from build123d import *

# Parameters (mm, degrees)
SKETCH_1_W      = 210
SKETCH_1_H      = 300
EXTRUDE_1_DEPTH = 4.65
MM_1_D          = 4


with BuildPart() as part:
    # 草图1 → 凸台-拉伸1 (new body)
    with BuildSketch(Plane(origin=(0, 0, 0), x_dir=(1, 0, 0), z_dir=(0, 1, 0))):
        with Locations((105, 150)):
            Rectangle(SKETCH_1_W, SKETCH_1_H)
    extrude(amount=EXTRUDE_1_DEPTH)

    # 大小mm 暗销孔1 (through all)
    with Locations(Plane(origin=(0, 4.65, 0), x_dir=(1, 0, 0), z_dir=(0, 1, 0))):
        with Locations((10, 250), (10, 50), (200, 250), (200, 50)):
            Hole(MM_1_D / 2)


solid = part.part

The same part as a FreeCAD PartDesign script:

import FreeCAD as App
import Part
import Sketcher

V = App.Vector
Q = App.Units.Quantity

doc = App.newDocument("Part")
body = doc.addObject("PartDesign::Body", "Body")

sketch1 = body.newObject("Sketcher::SketchObject", "Sketch")
sketch1.AttachmentSupport = (doc.getObject("XZ_Plane"), [""])
sketch1.MapMode = "FlatFace"
sketch1.addGeometry([
    Part.LineSegment(V(0, -300, 0), V(0, 0, 0)),
    Part.LineSegment(V(0, 0, 0), V(210, 0, 0)),
    Part.LineSegment(V(210, 0, 0), V(210, -300, 0)),
    Part.LineSegment(V(210, -300, 0), V(0, -300, 0)),
], False)
sketch1.addConstraint([
    Sketcher.Constraint("Coincident", 0, 2, 1, 1),
    Sketcher.Constraint("Coincident", 1, 2, 2, 1),
    Sketcher.Constraint("Coincident", 2, 2, 3, 1),
    Sketcher.Constraint("Coincident", 3, 2, 0, 1),
    Sketcher.Constraint("Vertical", 0),
    Sketcher.Constraint("Horizontal", 1),
    Sketcher.Constraint("Vertical", 2),
    Sketcher.Constraint("Horizontal", 3),
    Sketcher.Constraint("Coincident", 0, 2, -1, 1),
    Sketcher.Constraint("DistanceX", 1, 1, 1, 2, Q("210 mm")),
    Sketcher.Constraint("DistanceY", 0, 1, 0, 2, Q("300 mm")),
])
pad1 = body.newObject("PartDesign::Pad", "Pad")
pad1.Profile = sketch1
pad1.Length = 4.65
pad1.Reversed = True

sketch2 = body.newObject("Sketcher::SketchObject", "Sketch001")
sketch2.AttachmentSupport = (doc.getObject("XZ_Plane"), [""])
sketch2.MapMode = "FlatFace"
sketch2.AttachmentOffset = App.Placement(V(0, 0, -4.65), App.Rotation())
sketch2.addGeometry([
    Part.Circle(V(10, -250, 0), V(0, 0, 1), 2),
    Part.Circle(V(10, -50, 0), V(0, 0, 1), 2),
    Part.Circle(V(200, -250, 0), V(0, 0, 1), 2),
    Part.Circle(V(200, -50, 0), V(0, 0, 1), 2),
], False)
sketch2.addConstraint([
    Sketcher.Constraint("Equal", 0, 1),
    Sketcher.Constraint("Equal", 1, 2),
    Sketcher.Constraint("Equal", 2, 3),
    Sketcher.Constraint("Horizontal", 0, 3, 2, 3),
    Sketcher.Constraint("Horizontal", 1, 3, 3, 3),
    Sketcher.Constraint("Vertical", 0, 3, 1, 3),
    Sketcher.Constraint("Vertical", 2, 3, 3, 3),
    Sketcher.Constraint("Diameter", 0, Q("4 mm")),
    Sketcher.Constraint("DistanceX", -1, 1, 0, 3, Q("10 mm")),
    Sketcher.Constraint("DistanceY", 0, 3, -1, 1, Q("250 mm")),
    Sketcher.Constraint("DistanceY", 1, 3, -1, 1, Q("50 mm")),
    Sketcher.Constraint("DistanceX", -1, 1, 2, 3, Q("200 mm")),
])
doc.recompute()
hole = body.newObject("PartDesign::Hole", "Hole")
hole.Profile = sketch2
hole.ThreadType = "None"
hole.Diameter = 4
hole.DepthType = "ThroughAll"
hole.Reversed = True

doc.recompute()
